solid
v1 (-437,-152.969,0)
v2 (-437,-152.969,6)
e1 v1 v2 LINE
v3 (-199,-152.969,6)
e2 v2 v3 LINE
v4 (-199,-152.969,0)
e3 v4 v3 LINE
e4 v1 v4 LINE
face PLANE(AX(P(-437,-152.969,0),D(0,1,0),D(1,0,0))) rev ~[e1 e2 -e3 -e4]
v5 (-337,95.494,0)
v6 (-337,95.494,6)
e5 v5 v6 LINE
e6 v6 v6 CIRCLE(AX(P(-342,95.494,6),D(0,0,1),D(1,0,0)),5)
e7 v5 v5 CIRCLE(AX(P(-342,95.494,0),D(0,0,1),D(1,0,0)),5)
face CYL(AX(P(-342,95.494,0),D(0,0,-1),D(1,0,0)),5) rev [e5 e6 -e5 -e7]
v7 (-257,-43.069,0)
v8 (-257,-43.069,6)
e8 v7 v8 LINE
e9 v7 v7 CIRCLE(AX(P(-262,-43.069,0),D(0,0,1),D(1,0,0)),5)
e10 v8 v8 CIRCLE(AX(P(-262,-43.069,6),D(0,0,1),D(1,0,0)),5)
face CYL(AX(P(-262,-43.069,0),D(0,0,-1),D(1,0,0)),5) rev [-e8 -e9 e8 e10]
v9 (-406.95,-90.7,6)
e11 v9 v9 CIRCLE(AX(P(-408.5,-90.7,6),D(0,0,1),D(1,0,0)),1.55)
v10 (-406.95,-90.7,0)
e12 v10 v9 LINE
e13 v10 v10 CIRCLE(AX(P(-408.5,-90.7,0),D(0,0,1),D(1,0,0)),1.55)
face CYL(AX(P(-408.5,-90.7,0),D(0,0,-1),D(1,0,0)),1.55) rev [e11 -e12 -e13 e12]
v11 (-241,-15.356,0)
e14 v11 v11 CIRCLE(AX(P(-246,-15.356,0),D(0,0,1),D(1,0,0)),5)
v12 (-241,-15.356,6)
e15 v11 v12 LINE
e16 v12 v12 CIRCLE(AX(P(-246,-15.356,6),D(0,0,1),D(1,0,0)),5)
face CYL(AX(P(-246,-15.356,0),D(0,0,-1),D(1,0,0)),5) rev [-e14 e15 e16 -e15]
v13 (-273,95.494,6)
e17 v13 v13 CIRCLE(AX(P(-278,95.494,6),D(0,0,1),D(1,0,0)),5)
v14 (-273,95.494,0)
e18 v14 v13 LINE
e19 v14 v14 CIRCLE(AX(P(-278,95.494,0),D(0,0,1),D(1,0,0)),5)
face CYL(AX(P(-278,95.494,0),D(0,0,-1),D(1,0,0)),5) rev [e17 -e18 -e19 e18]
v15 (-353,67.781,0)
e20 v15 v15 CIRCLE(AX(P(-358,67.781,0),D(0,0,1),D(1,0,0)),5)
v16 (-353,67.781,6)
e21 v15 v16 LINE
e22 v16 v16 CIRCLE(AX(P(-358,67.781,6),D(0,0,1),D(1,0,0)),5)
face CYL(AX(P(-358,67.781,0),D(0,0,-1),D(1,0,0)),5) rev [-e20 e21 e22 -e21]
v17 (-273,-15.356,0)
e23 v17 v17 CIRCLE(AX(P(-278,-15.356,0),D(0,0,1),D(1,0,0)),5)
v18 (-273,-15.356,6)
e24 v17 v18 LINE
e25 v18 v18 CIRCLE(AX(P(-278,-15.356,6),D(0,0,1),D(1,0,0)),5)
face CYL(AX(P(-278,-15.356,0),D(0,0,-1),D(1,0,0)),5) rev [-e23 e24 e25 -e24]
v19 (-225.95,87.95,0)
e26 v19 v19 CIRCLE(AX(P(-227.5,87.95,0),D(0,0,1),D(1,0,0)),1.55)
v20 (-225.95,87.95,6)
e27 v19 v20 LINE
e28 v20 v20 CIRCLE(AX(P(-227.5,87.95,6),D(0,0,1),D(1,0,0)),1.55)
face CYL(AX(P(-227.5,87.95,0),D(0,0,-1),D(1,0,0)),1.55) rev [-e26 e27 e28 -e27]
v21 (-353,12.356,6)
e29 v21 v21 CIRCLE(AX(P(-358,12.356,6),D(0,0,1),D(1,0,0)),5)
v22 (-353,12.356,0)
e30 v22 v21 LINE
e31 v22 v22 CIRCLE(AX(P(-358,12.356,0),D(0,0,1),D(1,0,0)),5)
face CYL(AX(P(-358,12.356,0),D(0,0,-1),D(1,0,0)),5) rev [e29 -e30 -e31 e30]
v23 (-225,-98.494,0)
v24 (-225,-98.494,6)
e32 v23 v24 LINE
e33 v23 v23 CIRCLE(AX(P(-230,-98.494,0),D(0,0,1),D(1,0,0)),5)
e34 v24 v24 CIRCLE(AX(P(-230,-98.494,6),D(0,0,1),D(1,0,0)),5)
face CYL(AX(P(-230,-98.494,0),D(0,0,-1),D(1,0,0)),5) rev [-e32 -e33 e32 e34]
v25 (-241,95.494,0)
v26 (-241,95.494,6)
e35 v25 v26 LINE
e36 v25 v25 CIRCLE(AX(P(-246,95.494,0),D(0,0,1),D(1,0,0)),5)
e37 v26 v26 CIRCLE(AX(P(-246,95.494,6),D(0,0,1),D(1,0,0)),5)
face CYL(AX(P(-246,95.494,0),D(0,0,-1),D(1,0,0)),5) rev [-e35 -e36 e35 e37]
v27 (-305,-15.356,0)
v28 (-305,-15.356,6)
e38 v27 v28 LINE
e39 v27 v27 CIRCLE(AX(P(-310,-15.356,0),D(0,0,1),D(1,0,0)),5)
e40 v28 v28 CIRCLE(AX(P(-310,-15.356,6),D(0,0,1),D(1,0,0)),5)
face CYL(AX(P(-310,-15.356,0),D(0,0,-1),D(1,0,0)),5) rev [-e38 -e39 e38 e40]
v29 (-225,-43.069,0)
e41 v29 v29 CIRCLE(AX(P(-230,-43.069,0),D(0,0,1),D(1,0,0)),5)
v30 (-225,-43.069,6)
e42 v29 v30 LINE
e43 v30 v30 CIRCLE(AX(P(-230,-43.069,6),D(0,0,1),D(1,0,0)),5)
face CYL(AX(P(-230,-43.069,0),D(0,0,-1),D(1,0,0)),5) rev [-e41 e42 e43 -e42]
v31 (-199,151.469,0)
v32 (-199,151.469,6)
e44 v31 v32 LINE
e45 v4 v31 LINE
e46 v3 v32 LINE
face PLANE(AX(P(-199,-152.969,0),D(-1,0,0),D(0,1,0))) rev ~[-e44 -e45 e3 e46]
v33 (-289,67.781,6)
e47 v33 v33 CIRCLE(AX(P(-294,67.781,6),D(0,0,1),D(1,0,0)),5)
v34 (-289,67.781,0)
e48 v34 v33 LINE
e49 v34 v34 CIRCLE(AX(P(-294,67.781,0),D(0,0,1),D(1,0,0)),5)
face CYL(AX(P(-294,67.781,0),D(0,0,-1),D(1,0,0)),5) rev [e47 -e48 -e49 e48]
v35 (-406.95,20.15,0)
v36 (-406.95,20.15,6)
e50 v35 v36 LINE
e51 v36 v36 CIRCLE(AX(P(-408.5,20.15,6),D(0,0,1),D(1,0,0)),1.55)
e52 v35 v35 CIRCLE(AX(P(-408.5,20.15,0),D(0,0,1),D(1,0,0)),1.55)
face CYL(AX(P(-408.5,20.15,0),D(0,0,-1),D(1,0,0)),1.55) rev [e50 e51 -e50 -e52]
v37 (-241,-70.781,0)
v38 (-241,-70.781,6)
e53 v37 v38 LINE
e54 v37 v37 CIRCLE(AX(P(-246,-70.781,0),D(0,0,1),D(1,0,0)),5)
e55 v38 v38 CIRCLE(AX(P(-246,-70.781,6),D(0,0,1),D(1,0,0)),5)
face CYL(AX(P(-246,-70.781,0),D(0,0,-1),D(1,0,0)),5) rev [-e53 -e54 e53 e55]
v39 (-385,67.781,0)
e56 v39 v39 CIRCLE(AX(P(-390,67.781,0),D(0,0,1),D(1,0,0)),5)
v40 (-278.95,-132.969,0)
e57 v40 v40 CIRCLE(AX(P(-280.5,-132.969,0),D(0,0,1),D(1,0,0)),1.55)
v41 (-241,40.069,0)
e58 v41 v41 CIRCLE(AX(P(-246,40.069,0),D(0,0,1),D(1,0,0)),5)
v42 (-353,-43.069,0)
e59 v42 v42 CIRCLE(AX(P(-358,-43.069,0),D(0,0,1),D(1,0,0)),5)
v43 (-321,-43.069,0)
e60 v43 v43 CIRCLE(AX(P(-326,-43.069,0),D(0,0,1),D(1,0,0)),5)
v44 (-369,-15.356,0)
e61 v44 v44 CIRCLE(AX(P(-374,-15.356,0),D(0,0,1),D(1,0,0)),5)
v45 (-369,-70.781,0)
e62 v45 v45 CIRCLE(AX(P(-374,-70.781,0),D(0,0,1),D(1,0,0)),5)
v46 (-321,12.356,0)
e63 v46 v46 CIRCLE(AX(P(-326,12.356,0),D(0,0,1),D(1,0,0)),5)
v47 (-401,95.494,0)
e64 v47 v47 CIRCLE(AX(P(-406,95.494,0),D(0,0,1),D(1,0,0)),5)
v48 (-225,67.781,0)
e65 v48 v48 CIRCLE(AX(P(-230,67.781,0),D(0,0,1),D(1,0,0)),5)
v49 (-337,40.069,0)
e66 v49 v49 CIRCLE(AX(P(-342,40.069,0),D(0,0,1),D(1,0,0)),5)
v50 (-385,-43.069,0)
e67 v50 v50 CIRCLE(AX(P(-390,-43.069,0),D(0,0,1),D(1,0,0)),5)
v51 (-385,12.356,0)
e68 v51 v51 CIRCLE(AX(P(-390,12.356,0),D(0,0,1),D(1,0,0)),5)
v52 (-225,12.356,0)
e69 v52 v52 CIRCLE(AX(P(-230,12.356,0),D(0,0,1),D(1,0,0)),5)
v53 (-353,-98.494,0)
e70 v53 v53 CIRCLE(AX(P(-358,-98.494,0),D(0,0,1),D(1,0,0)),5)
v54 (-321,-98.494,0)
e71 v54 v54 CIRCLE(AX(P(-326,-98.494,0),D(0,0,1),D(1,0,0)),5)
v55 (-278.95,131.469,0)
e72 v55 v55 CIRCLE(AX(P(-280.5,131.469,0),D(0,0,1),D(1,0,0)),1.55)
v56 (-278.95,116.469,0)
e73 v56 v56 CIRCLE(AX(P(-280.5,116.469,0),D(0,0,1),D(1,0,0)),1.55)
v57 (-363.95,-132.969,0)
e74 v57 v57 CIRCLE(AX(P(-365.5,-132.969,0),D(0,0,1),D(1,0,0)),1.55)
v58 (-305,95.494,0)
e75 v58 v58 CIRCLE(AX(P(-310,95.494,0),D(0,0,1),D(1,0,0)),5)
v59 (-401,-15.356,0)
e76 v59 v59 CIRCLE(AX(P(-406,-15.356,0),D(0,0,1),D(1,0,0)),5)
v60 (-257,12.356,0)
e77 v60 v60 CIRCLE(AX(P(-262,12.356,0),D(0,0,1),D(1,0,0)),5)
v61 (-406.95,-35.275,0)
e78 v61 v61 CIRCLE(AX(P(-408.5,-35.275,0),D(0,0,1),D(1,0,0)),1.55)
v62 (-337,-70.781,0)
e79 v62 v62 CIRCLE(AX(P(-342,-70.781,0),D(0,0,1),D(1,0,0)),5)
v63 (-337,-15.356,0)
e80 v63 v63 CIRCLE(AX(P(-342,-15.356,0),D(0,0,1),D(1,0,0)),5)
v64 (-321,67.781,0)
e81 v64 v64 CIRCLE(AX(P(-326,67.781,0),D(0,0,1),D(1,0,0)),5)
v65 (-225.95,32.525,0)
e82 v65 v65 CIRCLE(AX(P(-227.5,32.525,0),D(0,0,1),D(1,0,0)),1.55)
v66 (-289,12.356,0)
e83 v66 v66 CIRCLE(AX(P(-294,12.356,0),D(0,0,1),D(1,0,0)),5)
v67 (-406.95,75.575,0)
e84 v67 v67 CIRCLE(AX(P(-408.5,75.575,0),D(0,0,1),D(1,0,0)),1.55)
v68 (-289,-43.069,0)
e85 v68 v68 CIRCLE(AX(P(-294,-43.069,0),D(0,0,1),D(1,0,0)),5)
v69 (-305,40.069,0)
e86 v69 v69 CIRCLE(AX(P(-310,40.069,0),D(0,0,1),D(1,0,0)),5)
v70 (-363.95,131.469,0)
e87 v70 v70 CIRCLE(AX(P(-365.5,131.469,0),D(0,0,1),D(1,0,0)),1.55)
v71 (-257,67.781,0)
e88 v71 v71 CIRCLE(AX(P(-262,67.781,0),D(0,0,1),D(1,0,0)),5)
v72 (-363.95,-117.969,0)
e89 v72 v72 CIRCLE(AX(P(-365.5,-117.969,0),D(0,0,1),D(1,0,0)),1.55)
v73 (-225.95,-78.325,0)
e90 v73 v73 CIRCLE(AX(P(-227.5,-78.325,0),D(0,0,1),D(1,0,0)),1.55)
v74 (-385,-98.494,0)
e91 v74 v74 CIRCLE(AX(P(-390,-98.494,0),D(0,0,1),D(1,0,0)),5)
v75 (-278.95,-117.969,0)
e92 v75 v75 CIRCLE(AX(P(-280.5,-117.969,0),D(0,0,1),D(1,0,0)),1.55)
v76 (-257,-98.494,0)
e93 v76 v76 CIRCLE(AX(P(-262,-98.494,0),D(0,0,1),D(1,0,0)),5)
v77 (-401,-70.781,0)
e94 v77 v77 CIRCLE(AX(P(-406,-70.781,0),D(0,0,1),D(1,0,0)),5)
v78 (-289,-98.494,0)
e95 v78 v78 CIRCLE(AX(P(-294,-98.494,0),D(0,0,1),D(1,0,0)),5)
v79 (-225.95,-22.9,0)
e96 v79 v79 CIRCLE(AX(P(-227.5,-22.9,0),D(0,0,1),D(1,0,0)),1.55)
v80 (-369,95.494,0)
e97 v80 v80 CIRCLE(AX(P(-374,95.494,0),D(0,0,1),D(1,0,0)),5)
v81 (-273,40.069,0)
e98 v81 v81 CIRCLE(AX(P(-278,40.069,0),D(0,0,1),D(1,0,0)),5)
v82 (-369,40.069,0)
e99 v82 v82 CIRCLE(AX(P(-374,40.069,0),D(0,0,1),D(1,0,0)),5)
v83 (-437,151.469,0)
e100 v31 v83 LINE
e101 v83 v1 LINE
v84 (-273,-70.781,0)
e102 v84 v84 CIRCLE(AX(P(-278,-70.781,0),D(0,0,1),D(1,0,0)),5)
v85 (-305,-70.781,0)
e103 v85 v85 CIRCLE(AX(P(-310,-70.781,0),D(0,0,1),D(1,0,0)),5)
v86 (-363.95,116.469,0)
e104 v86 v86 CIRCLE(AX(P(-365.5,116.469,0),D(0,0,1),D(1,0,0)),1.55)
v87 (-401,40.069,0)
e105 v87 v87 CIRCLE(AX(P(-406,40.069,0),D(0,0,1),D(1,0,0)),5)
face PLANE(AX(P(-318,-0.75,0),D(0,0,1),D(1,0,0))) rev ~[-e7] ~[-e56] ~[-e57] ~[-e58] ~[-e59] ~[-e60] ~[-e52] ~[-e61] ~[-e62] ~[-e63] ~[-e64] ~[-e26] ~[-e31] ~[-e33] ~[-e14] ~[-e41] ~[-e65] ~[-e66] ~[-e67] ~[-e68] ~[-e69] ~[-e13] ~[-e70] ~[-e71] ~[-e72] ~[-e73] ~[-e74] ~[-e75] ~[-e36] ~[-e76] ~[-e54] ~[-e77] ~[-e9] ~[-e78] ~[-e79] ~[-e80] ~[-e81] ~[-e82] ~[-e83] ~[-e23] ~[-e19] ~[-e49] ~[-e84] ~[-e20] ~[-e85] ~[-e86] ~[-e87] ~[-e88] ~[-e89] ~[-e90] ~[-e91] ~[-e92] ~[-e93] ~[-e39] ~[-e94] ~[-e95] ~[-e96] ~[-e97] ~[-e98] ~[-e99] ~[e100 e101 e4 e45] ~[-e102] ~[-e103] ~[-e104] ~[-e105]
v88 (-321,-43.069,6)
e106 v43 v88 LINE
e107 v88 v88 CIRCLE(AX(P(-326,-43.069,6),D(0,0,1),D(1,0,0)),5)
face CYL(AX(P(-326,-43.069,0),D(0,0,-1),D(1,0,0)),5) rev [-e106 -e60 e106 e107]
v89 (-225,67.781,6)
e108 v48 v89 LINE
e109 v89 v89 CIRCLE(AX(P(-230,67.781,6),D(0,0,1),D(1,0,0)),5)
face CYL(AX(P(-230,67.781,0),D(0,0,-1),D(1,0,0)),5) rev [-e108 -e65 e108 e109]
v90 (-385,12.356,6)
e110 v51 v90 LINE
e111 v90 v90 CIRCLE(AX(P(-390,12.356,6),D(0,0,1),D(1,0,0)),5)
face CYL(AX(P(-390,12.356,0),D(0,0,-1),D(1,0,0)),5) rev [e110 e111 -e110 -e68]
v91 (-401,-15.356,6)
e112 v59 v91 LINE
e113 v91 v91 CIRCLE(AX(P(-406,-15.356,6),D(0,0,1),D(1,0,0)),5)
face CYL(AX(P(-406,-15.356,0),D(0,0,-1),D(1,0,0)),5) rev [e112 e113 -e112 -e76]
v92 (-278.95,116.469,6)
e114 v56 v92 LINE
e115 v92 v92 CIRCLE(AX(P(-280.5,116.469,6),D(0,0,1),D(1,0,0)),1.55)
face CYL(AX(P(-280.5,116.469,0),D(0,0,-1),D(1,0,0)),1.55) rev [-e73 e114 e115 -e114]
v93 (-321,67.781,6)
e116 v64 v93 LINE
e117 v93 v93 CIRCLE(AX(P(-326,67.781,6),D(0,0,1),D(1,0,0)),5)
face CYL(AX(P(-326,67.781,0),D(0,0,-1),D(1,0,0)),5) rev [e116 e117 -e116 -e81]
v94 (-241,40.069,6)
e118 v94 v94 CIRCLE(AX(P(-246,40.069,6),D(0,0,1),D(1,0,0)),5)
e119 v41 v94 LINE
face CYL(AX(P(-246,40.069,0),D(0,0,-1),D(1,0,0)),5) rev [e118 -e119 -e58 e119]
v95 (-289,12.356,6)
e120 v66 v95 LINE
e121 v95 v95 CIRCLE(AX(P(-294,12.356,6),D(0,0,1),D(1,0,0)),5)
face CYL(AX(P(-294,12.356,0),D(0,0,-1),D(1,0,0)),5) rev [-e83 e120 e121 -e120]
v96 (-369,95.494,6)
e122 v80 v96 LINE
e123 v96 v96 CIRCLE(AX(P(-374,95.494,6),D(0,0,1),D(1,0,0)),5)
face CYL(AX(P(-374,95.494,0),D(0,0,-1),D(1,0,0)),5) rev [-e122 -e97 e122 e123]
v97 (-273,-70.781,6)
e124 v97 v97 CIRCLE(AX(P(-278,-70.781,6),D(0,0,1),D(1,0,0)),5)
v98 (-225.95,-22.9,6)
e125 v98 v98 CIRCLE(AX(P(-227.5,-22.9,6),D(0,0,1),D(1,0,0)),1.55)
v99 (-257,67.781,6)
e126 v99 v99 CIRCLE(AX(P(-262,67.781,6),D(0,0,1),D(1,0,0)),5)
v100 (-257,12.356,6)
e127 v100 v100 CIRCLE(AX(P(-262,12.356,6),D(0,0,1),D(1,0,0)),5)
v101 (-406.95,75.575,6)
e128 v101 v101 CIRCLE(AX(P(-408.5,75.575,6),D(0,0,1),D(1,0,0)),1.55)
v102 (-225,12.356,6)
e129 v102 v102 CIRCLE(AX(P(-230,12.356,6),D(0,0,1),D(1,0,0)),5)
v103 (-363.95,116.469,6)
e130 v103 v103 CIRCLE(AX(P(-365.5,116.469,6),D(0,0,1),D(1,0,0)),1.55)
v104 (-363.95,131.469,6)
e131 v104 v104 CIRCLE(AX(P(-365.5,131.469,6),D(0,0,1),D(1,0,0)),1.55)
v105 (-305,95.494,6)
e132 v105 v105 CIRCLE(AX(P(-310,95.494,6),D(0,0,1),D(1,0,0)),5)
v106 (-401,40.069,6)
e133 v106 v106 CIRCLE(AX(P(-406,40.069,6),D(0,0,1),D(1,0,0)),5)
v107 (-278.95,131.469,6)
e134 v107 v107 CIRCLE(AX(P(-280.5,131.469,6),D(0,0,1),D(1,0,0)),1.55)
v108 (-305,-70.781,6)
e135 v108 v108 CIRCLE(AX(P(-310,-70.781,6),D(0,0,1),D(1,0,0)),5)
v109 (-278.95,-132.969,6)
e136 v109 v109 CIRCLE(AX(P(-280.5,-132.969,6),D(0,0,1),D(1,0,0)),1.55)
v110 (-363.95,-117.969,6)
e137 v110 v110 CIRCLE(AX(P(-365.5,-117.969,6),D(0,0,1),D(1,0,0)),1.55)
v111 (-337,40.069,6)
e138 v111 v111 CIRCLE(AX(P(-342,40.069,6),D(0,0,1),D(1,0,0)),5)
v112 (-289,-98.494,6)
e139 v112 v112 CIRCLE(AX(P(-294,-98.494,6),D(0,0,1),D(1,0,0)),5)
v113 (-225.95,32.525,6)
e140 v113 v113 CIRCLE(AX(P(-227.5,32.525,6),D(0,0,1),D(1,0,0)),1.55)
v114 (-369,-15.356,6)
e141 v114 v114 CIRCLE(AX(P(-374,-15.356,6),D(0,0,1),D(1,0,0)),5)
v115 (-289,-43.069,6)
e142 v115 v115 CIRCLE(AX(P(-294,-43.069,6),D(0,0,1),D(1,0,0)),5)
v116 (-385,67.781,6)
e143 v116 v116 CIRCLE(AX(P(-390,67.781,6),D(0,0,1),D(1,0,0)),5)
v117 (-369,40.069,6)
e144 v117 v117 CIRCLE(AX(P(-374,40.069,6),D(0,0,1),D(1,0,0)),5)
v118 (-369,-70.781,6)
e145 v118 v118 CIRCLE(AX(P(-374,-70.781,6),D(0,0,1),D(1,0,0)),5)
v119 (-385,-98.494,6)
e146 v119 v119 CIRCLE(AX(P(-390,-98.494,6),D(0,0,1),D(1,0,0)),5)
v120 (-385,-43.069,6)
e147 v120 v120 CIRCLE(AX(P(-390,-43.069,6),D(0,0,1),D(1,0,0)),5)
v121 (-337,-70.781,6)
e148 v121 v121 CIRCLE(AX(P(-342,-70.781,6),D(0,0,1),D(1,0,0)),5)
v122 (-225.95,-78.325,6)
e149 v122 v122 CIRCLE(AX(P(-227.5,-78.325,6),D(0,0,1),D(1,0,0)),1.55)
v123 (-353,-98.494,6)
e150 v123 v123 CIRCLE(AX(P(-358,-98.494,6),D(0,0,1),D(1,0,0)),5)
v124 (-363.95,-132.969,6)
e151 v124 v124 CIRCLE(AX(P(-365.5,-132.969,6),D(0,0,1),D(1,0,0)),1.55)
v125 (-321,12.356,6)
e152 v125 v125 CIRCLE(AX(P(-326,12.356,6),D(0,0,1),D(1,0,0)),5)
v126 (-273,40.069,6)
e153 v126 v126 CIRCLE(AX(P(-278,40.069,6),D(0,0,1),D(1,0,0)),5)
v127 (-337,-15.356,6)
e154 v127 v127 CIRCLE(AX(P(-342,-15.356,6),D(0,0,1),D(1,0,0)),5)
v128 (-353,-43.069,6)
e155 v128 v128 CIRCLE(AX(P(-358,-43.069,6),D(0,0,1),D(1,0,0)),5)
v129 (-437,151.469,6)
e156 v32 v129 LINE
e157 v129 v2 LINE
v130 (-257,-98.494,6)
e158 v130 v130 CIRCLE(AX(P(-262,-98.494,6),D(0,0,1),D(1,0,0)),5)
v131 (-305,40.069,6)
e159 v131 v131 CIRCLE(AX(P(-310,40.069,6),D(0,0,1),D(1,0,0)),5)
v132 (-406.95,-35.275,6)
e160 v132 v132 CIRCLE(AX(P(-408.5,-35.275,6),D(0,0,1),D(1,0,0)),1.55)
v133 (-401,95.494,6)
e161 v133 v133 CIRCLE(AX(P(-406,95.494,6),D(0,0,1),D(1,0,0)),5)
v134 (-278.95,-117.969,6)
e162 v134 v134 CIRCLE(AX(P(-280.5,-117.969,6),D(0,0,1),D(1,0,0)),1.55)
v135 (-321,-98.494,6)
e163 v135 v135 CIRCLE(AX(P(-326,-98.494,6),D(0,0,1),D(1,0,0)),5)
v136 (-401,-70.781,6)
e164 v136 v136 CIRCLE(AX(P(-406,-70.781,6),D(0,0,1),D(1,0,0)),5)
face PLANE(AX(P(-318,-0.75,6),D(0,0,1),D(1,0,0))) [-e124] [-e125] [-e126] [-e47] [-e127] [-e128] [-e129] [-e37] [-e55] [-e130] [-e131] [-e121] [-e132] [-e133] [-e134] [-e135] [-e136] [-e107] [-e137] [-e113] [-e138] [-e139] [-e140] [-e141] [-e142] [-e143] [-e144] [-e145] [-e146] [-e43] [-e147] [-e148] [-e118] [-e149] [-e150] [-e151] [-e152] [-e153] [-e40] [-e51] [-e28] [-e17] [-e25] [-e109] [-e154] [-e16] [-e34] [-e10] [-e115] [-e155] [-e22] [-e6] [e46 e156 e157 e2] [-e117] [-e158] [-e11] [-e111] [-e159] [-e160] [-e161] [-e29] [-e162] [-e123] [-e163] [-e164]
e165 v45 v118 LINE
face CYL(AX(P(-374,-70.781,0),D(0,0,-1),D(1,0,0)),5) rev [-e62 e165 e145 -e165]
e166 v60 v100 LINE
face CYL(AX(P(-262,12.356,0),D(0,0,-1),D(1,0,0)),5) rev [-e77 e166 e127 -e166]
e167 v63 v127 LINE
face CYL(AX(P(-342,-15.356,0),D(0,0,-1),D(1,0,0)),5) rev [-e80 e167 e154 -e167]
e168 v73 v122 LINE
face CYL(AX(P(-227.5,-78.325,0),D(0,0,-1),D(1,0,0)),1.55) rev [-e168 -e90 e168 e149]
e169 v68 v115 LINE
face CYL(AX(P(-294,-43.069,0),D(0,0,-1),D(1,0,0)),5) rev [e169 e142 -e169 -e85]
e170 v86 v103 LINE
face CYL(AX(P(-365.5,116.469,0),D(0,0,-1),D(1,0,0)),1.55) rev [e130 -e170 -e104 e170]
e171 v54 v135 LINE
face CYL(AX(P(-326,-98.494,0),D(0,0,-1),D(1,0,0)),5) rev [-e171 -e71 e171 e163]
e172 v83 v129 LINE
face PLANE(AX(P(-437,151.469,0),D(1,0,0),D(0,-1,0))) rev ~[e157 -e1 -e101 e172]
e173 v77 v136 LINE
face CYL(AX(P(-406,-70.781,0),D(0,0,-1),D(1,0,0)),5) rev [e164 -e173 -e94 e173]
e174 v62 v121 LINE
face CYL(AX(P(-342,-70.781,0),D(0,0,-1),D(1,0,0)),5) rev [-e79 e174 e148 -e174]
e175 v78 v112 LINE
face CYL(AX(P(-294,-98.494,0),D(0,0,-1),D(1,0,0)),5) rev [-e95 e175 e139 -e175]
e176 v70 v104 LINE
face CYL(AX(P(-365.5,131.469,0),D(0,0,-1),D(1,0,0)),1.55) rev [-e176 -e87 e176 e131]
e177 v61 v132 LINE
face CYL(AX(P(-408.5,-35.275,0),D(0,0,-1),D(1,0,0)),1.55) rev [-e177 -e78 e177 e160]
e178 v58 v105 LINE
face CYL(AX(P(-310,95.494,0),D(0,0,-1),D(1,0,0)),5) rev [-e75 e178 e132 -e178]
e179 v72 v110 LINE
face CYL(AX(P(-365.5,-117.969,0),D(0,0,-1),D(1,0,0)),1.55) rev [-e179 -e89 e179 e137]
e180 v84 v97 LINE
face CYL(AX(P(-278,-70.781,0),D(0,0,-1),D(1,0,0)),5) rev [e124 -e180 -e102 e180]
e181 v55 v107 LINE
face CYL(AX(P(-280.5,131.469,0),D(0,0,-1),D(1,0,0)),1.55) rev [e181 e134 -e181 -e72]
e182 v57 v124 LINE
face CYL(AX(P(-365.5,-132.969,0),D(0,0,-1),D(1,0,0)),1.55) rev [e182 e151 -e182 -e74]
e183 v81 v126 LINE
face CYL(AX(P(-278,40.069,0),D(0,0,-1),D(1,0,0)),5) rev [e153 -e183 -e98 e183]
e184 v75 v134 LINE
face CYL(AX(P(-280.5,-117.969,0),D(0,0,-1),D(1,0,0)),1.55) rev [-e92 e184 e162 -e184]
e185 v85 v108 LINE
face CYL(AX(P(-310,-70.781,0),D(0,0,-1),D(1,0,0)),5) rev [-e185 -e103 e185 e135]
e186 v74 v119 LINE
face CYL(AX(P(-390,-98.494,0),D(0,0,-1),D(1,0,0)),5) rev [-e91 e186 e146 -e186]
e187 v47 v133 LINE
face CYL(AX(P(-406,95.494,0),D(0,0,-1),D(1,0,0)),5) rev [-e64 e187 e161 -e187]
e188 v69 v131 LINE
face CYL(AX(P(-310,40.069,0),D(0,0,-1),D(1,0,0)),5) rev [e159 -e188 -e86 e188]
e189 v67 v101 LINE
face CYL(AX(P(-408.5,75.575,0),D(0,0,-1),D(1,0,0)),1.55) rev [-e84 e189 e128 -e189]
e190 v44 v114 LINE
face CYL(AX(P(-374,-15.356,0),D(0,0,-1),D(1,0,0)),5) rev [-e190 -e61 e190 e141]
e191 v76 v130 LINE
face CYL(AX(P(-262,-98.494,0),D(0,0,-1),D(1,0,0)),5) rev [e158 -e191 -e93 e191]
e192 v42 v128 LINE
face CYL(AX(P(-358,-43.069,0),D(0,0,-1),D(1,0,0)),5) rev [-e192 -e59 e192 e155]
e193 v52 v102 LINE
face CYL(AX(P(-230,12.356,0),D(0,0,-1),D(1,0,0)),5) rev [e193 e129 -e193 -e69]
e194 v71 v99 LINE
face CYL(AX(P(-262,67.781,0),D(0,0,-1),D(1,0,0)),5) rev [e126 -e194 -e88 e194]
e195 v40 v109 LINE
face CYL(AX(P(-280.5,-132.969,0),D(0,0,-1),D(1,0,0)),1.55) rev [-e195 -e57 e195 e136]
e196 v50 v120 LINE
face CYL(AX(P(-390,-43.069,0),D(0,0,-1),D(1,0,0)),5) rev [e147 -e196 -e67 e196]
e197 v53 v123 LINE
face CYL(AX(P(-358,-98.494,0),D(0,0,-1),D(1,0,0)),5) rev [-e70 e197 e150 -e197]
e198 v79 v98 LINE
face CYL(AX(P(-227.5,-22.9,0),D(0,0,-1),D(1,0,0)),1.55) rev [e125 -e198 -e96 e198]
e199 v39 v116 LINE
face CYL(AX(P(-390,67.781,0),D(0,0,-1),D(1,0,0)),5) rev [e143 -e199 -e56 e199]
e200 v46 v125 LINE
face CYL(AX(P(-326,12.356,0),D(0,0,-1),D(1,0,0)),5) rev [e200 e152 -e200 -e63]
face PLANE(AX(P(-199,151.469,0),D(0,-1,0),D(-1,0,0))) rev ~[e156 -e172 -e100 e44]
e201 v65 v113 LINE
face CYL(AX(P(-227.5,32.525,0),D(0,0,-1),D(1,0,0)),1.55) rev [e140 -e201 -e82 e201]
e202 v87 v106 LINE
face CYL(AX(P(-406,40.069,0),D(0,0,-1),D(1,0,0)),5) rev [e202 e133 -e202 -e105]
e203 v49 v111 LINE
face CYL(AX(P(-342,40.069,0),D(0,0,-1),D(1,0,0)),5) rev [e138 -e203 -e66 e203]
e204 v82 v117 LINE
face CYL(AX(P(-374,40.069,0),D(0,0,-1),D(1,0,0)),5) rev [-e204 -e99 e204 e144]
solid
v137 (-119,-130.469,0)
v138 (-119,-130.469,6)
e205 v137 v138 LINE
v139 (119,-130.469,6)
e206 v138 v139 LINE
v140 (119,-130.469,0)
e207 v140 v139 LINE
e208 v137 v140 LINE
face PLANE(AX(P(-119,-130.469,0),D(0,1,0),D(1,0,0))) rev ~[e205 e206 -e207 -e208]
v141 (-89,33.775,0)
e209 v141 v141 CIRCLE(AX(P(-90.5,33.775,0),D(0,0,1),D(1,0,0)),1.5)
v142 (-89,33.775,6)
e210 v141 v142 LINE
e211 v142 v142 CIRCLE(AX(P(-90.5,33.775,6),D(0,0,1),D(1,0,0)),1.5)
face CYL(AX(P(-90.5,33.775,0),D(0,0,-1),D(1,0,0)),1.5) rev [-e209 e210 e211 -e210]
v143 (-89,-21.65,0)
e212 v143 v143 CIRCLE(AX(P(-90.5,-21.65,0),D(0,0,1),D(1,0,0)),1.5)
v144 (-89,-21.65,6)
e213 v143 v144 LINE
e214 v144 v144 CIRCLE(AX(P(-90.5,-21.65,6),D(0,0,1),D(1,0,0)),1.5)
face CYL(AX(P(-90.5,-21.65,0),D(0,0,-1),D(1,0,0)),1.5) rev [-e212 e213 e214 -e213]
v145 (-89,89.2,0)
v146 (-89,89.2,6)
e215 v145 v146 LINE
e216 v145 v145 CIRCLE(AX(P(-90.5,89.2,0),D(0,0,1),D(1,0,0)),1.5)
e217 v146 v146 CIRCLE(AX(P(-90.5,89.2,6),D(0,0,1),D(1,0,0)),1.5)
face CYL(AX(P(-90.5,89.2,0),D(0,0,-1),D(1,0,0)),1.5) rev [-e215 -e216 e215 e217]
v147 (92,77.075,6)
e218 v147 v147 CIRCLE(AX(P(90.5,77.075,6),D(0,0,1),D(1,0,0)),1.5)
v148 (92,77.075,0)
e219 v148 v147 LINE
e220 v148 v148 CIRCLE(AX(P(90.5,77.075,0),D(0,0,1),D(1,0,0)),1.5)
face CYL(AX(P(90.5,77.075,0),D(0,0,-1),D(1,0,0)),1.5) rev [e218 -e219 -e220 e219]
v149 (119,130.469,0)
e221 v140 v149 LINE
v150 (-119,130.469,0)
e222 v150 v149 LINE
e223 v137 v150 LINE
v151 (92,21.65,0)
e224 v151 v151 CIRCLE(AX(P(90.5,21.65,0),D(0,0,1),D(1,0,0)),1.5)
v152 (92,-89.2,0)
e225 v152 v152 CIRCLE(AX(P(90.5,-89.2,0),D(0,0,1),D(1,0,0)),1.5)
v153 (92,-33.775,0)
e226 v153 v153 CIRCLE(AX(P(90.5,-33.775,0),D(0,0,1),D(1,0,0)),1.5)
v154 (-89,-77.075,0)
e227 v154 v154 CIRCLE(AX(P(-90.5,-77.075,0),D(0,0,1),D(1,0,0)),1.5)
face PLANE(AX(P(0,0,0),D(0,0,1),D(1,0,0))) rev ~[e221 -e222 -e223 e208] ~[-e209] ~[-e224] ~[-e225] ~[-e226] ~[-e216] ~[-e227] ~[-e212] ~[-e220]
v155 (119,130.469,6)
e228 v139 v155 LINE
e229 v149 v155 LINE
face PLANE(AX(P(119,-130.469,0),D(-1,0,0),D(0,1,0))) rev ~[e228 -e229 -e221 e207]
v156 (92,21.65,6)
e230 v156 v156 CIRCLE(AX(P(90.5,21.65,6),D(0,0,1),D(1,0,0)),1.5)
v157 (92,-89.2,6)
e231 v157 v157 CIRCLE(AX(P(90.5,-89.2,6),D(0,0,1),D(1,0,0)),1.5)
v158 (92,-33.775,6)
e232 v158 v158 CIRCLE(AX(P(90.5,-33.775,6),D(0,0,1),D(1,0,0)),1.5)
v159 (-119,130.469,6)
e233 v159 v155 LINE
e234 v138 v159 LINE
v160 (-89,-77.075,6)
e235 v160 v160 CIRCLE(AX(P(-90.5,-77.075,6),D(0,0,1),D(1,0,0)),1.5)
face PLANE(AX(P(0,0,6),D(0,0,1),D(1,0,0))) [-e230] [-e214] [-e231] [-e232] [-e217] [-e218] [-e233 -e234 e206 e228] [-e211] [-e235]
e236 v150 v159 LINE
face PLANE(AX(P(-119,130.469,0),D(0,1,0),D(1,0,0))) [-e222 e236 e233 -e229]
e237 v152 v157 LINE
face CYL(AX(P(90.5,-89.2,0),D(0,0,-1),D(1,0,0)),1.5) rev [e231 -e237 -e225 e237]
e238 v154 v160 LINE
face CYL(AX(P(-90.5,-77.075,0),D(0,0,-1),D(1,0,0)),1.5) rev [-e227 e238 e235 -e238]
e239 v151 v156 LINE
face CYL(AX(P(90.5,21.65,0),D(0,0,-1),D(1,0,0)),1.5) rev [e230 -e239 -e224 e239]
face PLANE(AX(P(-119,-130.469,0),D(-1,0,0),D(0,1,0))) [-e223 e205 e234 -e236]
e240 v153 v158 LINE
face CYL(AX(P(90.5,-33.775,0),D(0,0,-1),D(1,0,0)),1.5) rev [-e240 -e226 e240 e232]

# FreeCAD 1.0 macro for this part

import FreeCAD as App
import Part
import Sketcher

V = App.Vector
Q = App.Units.Quantity


def add_polygon(sketch, points):
    """Adds a closed chain of lines whose ends are joined by coincident constraints."""
    first, n = sketch.GeometryCount, len(points)
    for a, b in zip(points, points[1:] + points[:1]):
        sketch.addGeometry(Part.LineSegment(App.Vector(*a, 0), App.Vector(*b, 0)), False)
    for i in range(n):
        sketch.addConstraint(Sketcher.Constraint("Coincident", first + i, 2, first + (i + 1) % n, 1))

doc = App.newDocument("Part")
body = doc.addObject("PartDesign::Body", "Body")
body.AllowCompound = True

# Sketch on XY plane
sketch1 = body.newObject("Sketcher::SketchObject", "Sketch")
sketch1.AttachmentSupport = (doc.getObject("XY_Plane"), [""])
sketch1.MapMode = "FlatFace"
add_polygon(sketch1, [(-119, 130.5), (-119, -130.5), (119, -130.5), (119, 130.5)])  # lines 0-3
sketch1.addGeometry(Part.Circle(V(-90.5, -77.1, 0), V(0, 0, 1), 1.5), False)  # 4
sketch1.addGeometry(Part.Circle(V(-90.5, -21.6, 0), V(0, 0, 1), 1.5), False)  # 5
sketch1.addGeometry(Part.Circle(V(90.5, -89.2, 0), V(0, 0, 1), 1.5), False)  # 6
sketch1.addGeometry(Part.Circle(V(90.5, -33.8, 0), V(0, 0, 1), 1.5), False)  # 7
sketch1.addGeometry(Part.Circle(V(-90.5, 33.8, 0), V(0, 0, 1), 1.5), False)  # 8
sketch1.addGeometry(Part.Circle(V(-90.5, 89.2, 0), V(0, 0, 1), 1.5), False)  # 9
sketch1.addGeometry(Part.Circle(V(90.5, 21.6, 0), V(0, 0, 1), 1.5), False)  # 10
sketch1.addGeometry(Part.Circle(V(90.5, 77.1, 0), V(0, 0, 1), 1.5), False)  # 11
add_polygon(sketch1, [(-199, -153), (-199, 151.5), (-437, 151.5), (-437, -153)])  # lines 12-15
sketch1.addGeometry(Part.Circle(V(-365.5, -133, 0), V(0, 0, 1), 1.6), False)  # 16
sketch1.addGeometry(Part.Circle(V(-365.5, -118, 0), V(0, 0, 1), 1.6), False)  # 17
sketch1.addGeometry(Part.Circle(V(-408.5, -90.7, 0), V(0, 0, 1), 1.6), False)  # 18
sketch1.addGeometry(Part.Circle(V(-390, -98.5, 0), V(0, 0, 1), 5), False)  # 19
sketch1.addGeometry(Part.Circle(V(-406, -70.8, 0), V(0, 0, 1), 5), False)  # 20
sketch1.addGeometry(Part.Circle(V(-374, -70.8, 0), V(0, 0, 1), 5), False)  # 21
sketch1.addGeometry(Part.Circle(V(-358, -98.5, 0), V(0, 0, 1), 5), False)  # 22
sketch1.addGeometry(Part.Circle(V(-342, -70.8, 0), V(0, 0, 1), 5), False)  # 23
sketch1.addGeometry(Part.Circle(V(-326, -98.5, 0), V(0, 0, 1), 5), False)  # 24
sketch1.addGeometry(Part.Circle(V(-408.5, -35.3, 0), V(0, 0, 1), 1.6), False)  # 25
sketch1.addGeometry(Part.Circle(V(-390, -43.1, 0), V(0, 0, 1), 5), False)  # 26
sketch1.addGeometry(Part.Circle(V(-406, -15.4, 0), V(0, 0, 1), 5), False)  # 27
sketch1.addGeometry(Part.Circle(V(-374, -15.4, 0), V(0, 0, 1), 5), False)  # 28
sketch1.addGeometry(Part.Circle(V(-358, -43.1, 0), V(0, 0, 1), 5), False)  # 29
sketch1.addGeometry(Part.Circle(V(-326, -43.1, 0), V(0, 0, 1), 5), False)  # 30
sketch1.addGeometry(Part.Circle(V(-342, -15.4, 0), V(0, 0, 1), 5), False)  # 31
sketch1.addGeometry(Part.Circle(V(-280.5, -133, 0), V(0, 0, 1), 1.6), False)  # 32
sketch1.addGeometry(Part.Circle(V(-280.5, -118, 0), V(0, 0, 1), 1.6), False)  # 33
sketch1.addGeometry(Part.Circle(V(-310, -70.8, 0), V(0, 0, 1), 5), False)  # 34
sketch1.addGeometry(Part.Circle(V(-294, -98.5, 0), V(0, 0, 1), 5), False)  # 35
sketch1.addGeometry(Part.Circle(V(-278, -70.8, 0), V(0, 0, 1), 5), False)  # 36
sketch1.addGeometry(Part.Circle(V(-262, -98.5, 0), V(0, 0, 1), 5), False)  # 37
sketch1.addGeometry(Part.Circle(V(-230, -98.5, 0), V(0, 0, 1), 5), False)  # 38
sketch1.addGeometry(Part.Circle(V(-246, -70.8, 0), V(0, 0, 1), 5), False)  # 39
sketch1.addGeometry(Part.Circle(V(-227.5, -78.3, 0), V(0, 0, 1), 1.6), False)  # 40
sketch1.addGeometry(Part.Circle(V(-294, -43.1, 0), V(0, 0, 1), 5), False)  # 41
sketch1.addGeometry(Part.Circle(V(-310, -15.4, 0), V(0, 0, 1), 5), False)  # 42
sketch1.addGeometry(Part.Circle(V(-278, -15.4, 0), V(0, 0, 1), 5), False)  # 43
sketch1.addGeometry(Part.Circle(V(-262, -43.1, 0), V(0, 0, 1), 5), False)  # 44
sketch1.addGeometry(Part.Circle(V(-230, -43.1, 0), V(0, 0, 1), 5), False)  # 45
sketch1.addGeometry(Part.Circle(V(-227.5, -22.9, 0), V(0, 0, 1), 1.6), False)  # 46
sketch1.addGeometry(Part.Circle(V(-246, -15.4, 0), V(0, 0, 1), 5), False)  # 47
sketch1.addGeometry(Part.Circle(V(-390, 12.4, 0), V(0, 0, 1), 5), False)  # 48
sketch1.addGeometry(Part.Circle(V(-408.5, 20.1, 0), V(0, 0, 1), 1.6), False)  # 49
sketch1.addGeometry(Part.Circle(V(-406, 40.1, 0), V(0, 0, 1), 5), False)  # 50
sketch1.addGeometry(Part.Circle(V(-374, 40.1, 0), V(0, 0, 1), 5), False)  # 51
sketch1.addGeometry(Part.Circle(V(-358, 12.4, 0), V(0, 0, 1), 5), False)  # 52
sketch1.addGeometry(Part.Circle(V(-326, 12.4, 0), V(0, 0, 1), 5), False)  # 53
sketch1.addGeometry(Part.Circle(V(-342, 40.1, 0), V(0, 0, 1), 5), False)  # 54
sketch1.addGeometry(Part.Circle(V(-408.5, 75.6, 0), V(0, 0, 1), 1.6), False)  # 55
sketch1.addGeometry(Part.Circle(V(-390, 67.8, 0), V(0, 0, 1), 5), False)  # 56
sketch1.addGeometry(Part.Circle(V(-406, 95.5, 0), V(0, 0, 1), 5), False)  # 57
sketch1.addGeometry(Part.Circle(V(-374, 95.5, 0), V(0, 0, 1), 5), False)  # 58
sketch1.addGeometry(Part.Circle(V(-365.5, 116.5, 0), V(0, 0, 1), 1.6), False)  # 59
sketch1.addGeometry(Part.Circle(V(-365.5, 131.5, 0), V(0, 0, 1), 1.6), False)  # 60
sketch1.addGeometry(Part.Circle(V(-358, 67.8, 0), V(0, 0, 1), 5), False)  # 61
sketch1.addGeometry(Part.Circle(V(-342, 95.5, 0), V(0, 0, 1), 5), False)  # 62
sketch1.addGeometry(Part.Circle(V(-326, 67.8, 0), V(0, 0, 1), 5), False)  # 63
sketch1.addGeometry(Part.Circle(V(-294, 12.4, 0), V(0, 0, 1), 5), False)  # 64
sketch1.addGeometry(Part.Circle(V(-310, 40.1, 0), V(0, 0, 1), 5), False)  # 65
sketch1.addGeometry(Part.Circle(V(-278, 40.1, 0), V(0, 0, 1), 5), False)  # 66
sketch1.addGeometry(Part.Circle(V(-262, 12.4, 0), V(0, 0, 1), 5), False)  # 67
sketch1.addGeometry(Part.Circle(V(-230, 12.4, 0), V(0, 0, 1), 5), False)  # 68
sketch1.addGeometry(Part.Circle(V(-227.5, 32.5, 0), V(0, 0, 1), 1.6), False)  # 69
sketch1.addGeometry(Part.Circle(V(-246, 40.1, 0), V(0, 0, 1), 5), False)  # 70
sketch1.addGeometry(Part.Circle(V(-310, 95.5, 0), V(0, 0, 1), 5), False)  # 71
sketch1.addGeometry(Part.Circle(V(-294, 67.8, 0), V(0, 0, 1), 5), False)  # 72
sketch1.addGeometry(Part.Circle(V(-278, 95.5, 0), V(0, 0, 1), 5), False)  # 73
sketch1.addGeometry(Part.Circle(V(-280.5, 116.5, 0), V(0, 0, 1), 1.6), False)  # 74
sketch1.addGeometry(Part.Circle(V(-280.5, 131.5, 0), V(0, 0, 1), 1.6), False)  # 75
sketch1.addGeometry(Part.Circle(V(-262, 67.8, 0), V(0, 0, 1), 5), False)  # 76
sketch1.addGeometry(Part.Circle(V(-230, 67.8, 0), V(0, 0, 1), 5), False)  # 77
sketch1.addGeometry(Part.Circle(V(-246, 95.5, 0), V(0, 0, 1), 5), False)  # 78
sketch1.addGeometry(Part.Circle(V(-227.5, 88, 0), V(0, 0, 1), 1.6), False)  # 79
sketch1.addConstraint(Sketcher.Constraint("Vertical", 0))
sketch1.addConstraint(Sketcher.Constraint("Horizontal", 1))
sketch1.addConstraint(Sketcher.Constraint("Vertical", 2))
sketch1.addConstraint(Sketcher.Constraint("Horizontal", 3))
sketch1.addConstraint(Sketcher.Constraint("Vertical", 12))
sketch1.addConstraint(Sketcher.Constraint("Horizontal", 13))
sketch1.addConstraint(Sketcher.Constraint("Vertical", 14))
sketch1.addConstraint(Sketcher.Constraint("Horizontal", 15))
sketch1.addConstraint(Sketcher.Constraint("Equal", 4, 5))
sketch1.addConstraint(Sketcher.Constraint("Equal", 5, 6))
sketch1.addConstraint(Sketcher.Constraint("Equal", 6, 7))
sketch1.addConstraint(Sketcher.Constraint("Equal", 7, 8))
sketch1.addConstraint(Sketcher.Constraint("Equal", 8, 9))
sketch1.addConstraint(Sketcher.Constraint("Equal", 9, 10))
sketch1.addConstraint(Sketcher.Constraint("Equal", 10, 11))
sketch1.addConstraint(Sketcher.Constraint("Equal", 16, 17))
sketch1.addConstraint(Sketcher.Constraint("Equal", 17, 18))
sketch1.addConstraint(Sketcher.Constraint("Equal", 19, 20))
sketch1.addConstraint(Sketcher.Constraint("Equal", 20, 21))
sketch1.addConstraint(Sketcher.Constraint("Equal", 21, 22))
sketch1.addConstraint(Sketcher.Constraint("Equal", 22, 23))
sketch1.addConstraint(Sketcher.Constraint("Equal", 23, 24))
sketch1.addConstraint(Sketcher.Constraint("Equal", 18, 25))
sketch1.addConstraint(Sketcher.Constraint("Equal", 24, 26))
sketch1.addConstraint(Sketcher.Constraint("Equal", 26, 27))
sketch1.addConstraint(Sketcher.Constraint("Equal", 27, 28))
sketch1.addConstraint(Sketcher.Constraint("Equal", 28, 29))
sketch1.addConstraint(Sketcher.Constraint("Equal", 29, 30))
sketch1.addConstraint(Sketcher.Constraint("Equal", 30, 31))
sketch1.addConstraint(Sketcher.Constraint("Equal", 25, 32))
sketch1.addConstraint(Sketcher.Constraint("Equal", 32, 33))
sketch1.addConstraint(Sketcher.Constraint("Equal", 31, 34))
sketch1.addConstraint(Sketcher.Constraint("Equal", 34, 35))
sketch1.addConstraint(Sketcher.Constraint("Equal", 35, 36))
sketch1.addConstraint(Sketcher.Constraint("Equal", 36, 37))
sketch1.addConstraint(Sketcher.Constraint("Equal", 37, 38))
sketch1.addConstraint(Sketcher.Constraint("Equal", 38, 39))
sketch1.addConstraint(Sketcher.Constraint("Equal", 33, 40))
sketch1.addConstraint(Sketcher.Constraint("Equal", 39, 41))
sketch1.addConstraint(Sketcher.Constraint("Equal", 41, 42))
sketch1.addConstraint(Sketcher.Constraint("Equal", 42, 43))
sketch1.addConstraint(Sketcher.Constraint("Equal", 43, 44))
sketch1.addConstraint(Sketcher.Constraint("Equal", 44, 45))
sketch1.addConstraint(Sketcher.Constraint("Equal", 40, 46))
sketch1.addConstraint(Sketcher.Constraint("Equal", 45, 47))
sketch1.addConstraint(Sketcher.Constraint("Equal", 47, 48))
sketch1.addConstraint(Sketcher.Constraint("Equal", 46, 49))
sketch1.addConstraint(Sketcher.Constraint("Equal", 48, 50))
sketch1.addConstraint(Sketcher.Constraint("Equal", 50, 51))
sketch1.addConstraint(Sketcher.Constraint("Equal", 51, 52))
sketch1.addConstraint(Sketcher.Constraint("Equal", 52, 53))
sketch1.addConstraint(Sketcher.Constraint("Equal", 53, 54))
sketch1.addConstraint(Sketcher.Constraint("Equal", 49, 55))
sketch1.addConstraint(Sketcher.Constraint("Equal", 54, 56))
sketch1.addConstraint(Sketcher.Constraint("Equal", 56, 57))
sketch1.addConstraint(Sketcher.Constraint("Equal", 57, 58))
sketch1.addConstraint(Sketcher.Constraint("Equal", 55, 59))
sketch1.addConstraint(Sketcher.Constraint("Equal", 59, 60))
sketch1.addConstraint(Sketcher.Constraint("Equal", 58, 61))
sketch1.addConstraint(Sketcher.Constraint("Equal", 61, 62))
sketch1.addConstraint(Sketcher.Constraint("Equal", 62, 63))
sketch1.addConstraint(Sketcher.Constraint("Equal", 63, 64))
sketch1.addConstraint(Sketcher.Constraint("Equal", 64, 65))
sketch1.addConstraint(Sketcher.Constraint("Equal", 65, 66))
sketch1.addConstraint(Sketcher.Constraint("Equal", 66, 67))
sketch1.addConstraint(Sketcher.Constraint("Equal", 67, 68))
sketch1.addConstraint(Sketcher.Constraint("Equal", 60, 69))
sketch1.addConstraint(Sketcher.Constraint("Equal", 68, 70))
sketch1.addConstraint(Sketcher.Constraint("Equal", 70, 71))
sketch1.addConstraint(Sketcher.Constraint("Equal", 71, 72))
sketch1.addConstraint(Sketcher.Constraint("Equal", 72, 73))
sketch1.addConstraint(Sketcher.Constraint("Equal", 69, 74))
sketch1.addConstraint(Sketcher.Constraint("Equal", 74, 75))
sketch1.addConstraint(Sketcher.Constraint("Equal", 73, 76))
sketch1.addConstraint(Sketcher.Constraint("Equal", 76, 77))
sketch1.addConstraint(Sketcher.Constraint("Equal", 77, 78))
sketch1.addConstraint(Sketcher.Constraint("Equal", 75, 79))
sketch1.addConstraint(Sketcher.Constraint("Symmetric", 7, 3, 8, 3, -1, 1))
sketch1.addConstraint(Sketcher.Constraint("Symmetric", 6, 3, 9, 3, -1, 1))
sketch1.addConstraint(Sketcher.Constraint("Symmetric", 5, 3, 10, 3, -1, 1))
sketch1.addConstraint(Sketcher.Constraint("Symmetric", 4, 3, 11, 3, -1, 1))
sketch1.addConstraint(Sketcher.Constraint("Symmetric", 0, 2, 2, 2, -1, 1))
sketch1.addConstraint(Sketcher.Constraint("Horizontal", 20, 3, 21, 3))
sketch1.addConstraint(Sketcher.Constraint("Horizontal", 19, 3, 22, 3))
sketch1.addConstraint(Sketcher.Constraint("Horizontal", 21, 3, 23, 3))
sketch1.addConstraint(Sketcher.Constraint("Horizontal", 22, 3, 24, 3))
sketch1.addConstraint(Sketcher.Constraint("Horizontal", 27, 3, 28, 3))
sketch1.addConstraint(Sketcher.Constraint("Horizontal", 26, 3, 29, 3))
sketch1.addConstraint(Sketcher.Constraint("Horizontal", 29, 3, 30, 3))
sketch1.addConstraint(Sketcher.Constraint("Horizontal", 28, 3, 31, 3))
sketch1.addConstraint(Sketcher.Constraint("Horizontal", 16, 3, 32, 3))
sketch1.addConstraint(Sketcher.Constraint("Horizontal", 17, 3, 33, 3))
sketch1.addConstraint(Sketcher.Constraint("Horizontal", 23, 3, 34, 3))
sketch1.addConstraint(Sketcher.Constraint("Horizontal", 24, 3, 35, 3))
sketch1.addConstraint(Sketcher.Constraint("Horizontal", 34, 3, 36, 3))
sketch1.addConstraint(Sketcher.Constraint("Horizontal", 35, 3, 37, 3))
sketch1.addConstraint(Sketcher.Constraint("Horizontal", 37, 3, 38, 3))
sketch1.addConstraint(Sketcher.Constraint("Horizontal", 36, 3, 39, 3))
sketch1.addConstraint(Sketcher.Constraint("Horizontal", 30, 3, 41, 3))
sketch1.addConstraint(Sketcher.Constraint("Horizontal", 31, 3, 42, 3))
sketch1.addConstraint(Sketcher.Constraint("Horizontal", 42, 3, 43, 3))
sketch1.addConstraint(Sketcher.Constraint("Horizontal", 41, 3, 44, 3))
sketch1.addConstraint(Sketcher.Constraint("Horizontal", 44, 3, 45, 3))
sketch1.addConstraint(Sketcher.Constraint("Horizontal", 43, 3, 47, 3))
sketch1.addConstraint(Sketcher.Constraint("Horizontal", 50, 3, 51, 3))
sketch1.addConstraint(Sketcher.Constraint("Horizontal", 48, 3, 52, 3))
sketch1.addConstraint(Sketcher.Constraint("Horizontal", 52, 3, 53, 3))
sketch1.addConstraint(Sketcher.Constraint("Horizontal", 51, 3, 54, 3))
sketch1.addConstraint(Sketcher.Constraint("Horizontal", 57, 3, 58, 3))
sketch1.addConstraint(Sketcher.Constraint("Horizontal", 56, 3, 61, 3))
sketch1.addConstraint(Sketcher.Constraint("Horizontal", 58, 3, 62, 3))
sketch1.addConstraint(Sketcher.Constraint("Horizontal", 61, 3, 63, 3))
sketch1.addConstraint(Sketcher.Constraint("Horizontal", 53, 3, 64, 3))
sketch1.addConstraint(Sketcher.Constraint("Horizontal", 54, 3, 65, 3))
sketch1.addConstraint(Sketcher.Constraint("Horizontal", 65, 3, 66, 3))
sketch1.addConstraint(Sketcher.Constraint("Horizontal", 64, 3, 67, 3))
sketch1.addConstraint(Sketcher.Constraint("Horizontal", 67, 3, 68, 3))
sketch1.addConstraint(Sketcher.Constraint("Horizontal", 66, 3, 70, 3))
sketch1.addConstraint(Sketcher.Constraint("Horizontal", 62, 3, 71, 3))
sketch1.addConstraint(Sketcher.Constraint("Horizontal", 63, 3, 72, 3))
sketch1.addConstraint(Sketcher.Constraint("Horizontal", 71, 3, 73, 3))
sketch1.addConstraint(Sketcher.Constraint("Horizontal", 59, 3, 74, 3))
sketch1.addConstraint(Sketcher.Constraint("Horizontal", 60, 3, 75, 3))
sketch1.addConstraint(Sketcher.Constraint("Horizontal", 72, 3, 76, 3))
sketch1.addConstraint(Sketcher.Constraint("Horizontal", 76, 3, 77, 3))
sketch1.addConstraint(Sketcher.Constraint("Horizontal", 73, 3, 78, 3))
sketch1.addConstraint(Sketcher.Constraint("Vertical", 4, 3, 5, 3))
sketch1.addConstraint(Sketcher.Constraint("Vertical", 6, 3, 7, 3))
sketch1.addConstraint(Sketcher.Constraint("Vertical", 5, 3, 8, 3))
sketch1.addConstraint(Sketcher.Constraint("Vertical", 16, 3, 17, 3))
sketch1.addConstraint(Sketcher.Constraint("Vertical", 18, 3, 25, 3))
sketch1.addConstraint(Sketcher.Constraint("Vertical", 19, 3, 26, 3))
sketch1.addConstraint(Sketcher.Constraint("Vertical", 20, 3, 27, 3))
sketch1.addConstraint(Sketcher.Constraint("Vertical", 21, 3, 28, 3))
sketch1.addConstraint(Sketcher.Constraint("Vertical", 22, 3, 29, 3))
sketch1.addConstraint(Sketcher.Constraint("Vertical", 24, 3, 30, 3))
sketch1.addConstraint(Sketcher.Constraint("Vertical", 23, 3, 31, 3))
sketch1.addConstraint(Sketcher.Constraint("Vertical", 32, 3, 33, 3))
sketch1.addConstraint(Sketcher.Constraint("Vertical", 35, 3, 41, 3))
sketch1.addConstraint(Sketcher.Constraint("Vertical", 34, 3, 42, 3))
sketch1.addConstraint(Sketcher.Constraint("Vertical", 36, 3, 43, 3))
sketch1.addConstraint(Sketcher.Constraint("Vertical", 37, 3, 44, 3))
sketch1.addConstraint(Sketcher.Constraint("Vertical", 38, 3, 45, 3))
sketch1.addConstraint(Sketcher.Constraint("Vertical", 40, 3, 46, 3))
sketch1.addConstraint(Sketcher.Constraint("Vertical", 39, 3, 47, 3))
sketch1.addConstraint(Sketcher.Constraint("Vertical", 26, 3, 48, 3))
sketch1.addConstraint(Sketcher.Constraint("Vertical", 25, 3, 49, 3))
sketch1.addConstraint(Sketcher.Constraint("Vertical", 27, 3, 50, 3))
sketch1.addConstraint(Sketcher.Constraint("Vertical", 28, 3, 51, 3))
sketch1.addConstraint(Sketcher.Constraint("Vertical", 29, 3, 52, 3))
sketch1.addConstraint(Sketcher.Constraint("Vertical", 30, 3, 53, 3))
sketch1.addConstraint(Sketcher.Constraint("Vertical", 31, 3, 54, 3))
sketch1.addConstraint(Sketcher.Constraint("Vertical", 49, 3, 55, 3))
sketch1.addConstraint(Sketcher.Constraint("Vertical", 48, 3, 56, 3))
sketch1.addConstraint(Sketcher.Constraint("Vertical", 50, 3, 57, 3))
sketch1.addConstraint(Sketcher.Constraint("Vertical", 51, 3, 58, 3))
sketch1.addConstraint(Sketcher.Constraint("Vertical", 17, 3, 59, 3))
sketch1.addConstraint(Sketcher.Constraint("Vertical", 59, 3, 60, 3))
sketch1.addConstraint(Sketcher.Constraint("Vertical", 52, 3, 61, 3))
sketch1.addConstraint(Sketcher.Constraint("Vertical", 54, 3, 62, 3))
sketch1.addConstraint(Sketcher.Constraint("Vertical", 53, 3, 63, 3))
sketch1.addConstraint(Sketcher.Constraint("Vertical", 41, 3, 64, 3))
sketch1.addConstraint(Sketcher.Constraint("Vertical", 42, 3, 65, 3))
sketch1.addConstraint(Sketcher.Constraint("Vertical", 43, 3, 66, 3))
sketch1.addConstraint(Sketcher.Constraint("Vertical", 44, 3, 67, 3))
sketch1.addConstraint(Sketcher.Constraint("Vertical", 45, 3, 68, 3))
sketch1.addConstraint(Sketcher.Constraint("Vertical", 46, 3, 69, 3))
sketch1.addConstraint(Sketcher.Constraint("Vertical", 47, 3, 70, 3))
sketch1.addConstraint(Sketcher.Constraint("Vertical", 65, 3, 71, 3))
sketch1.addConstraint(Sketcher.Constraint("Vertical", 64, 3, 72, 3))
sketch1.addConstraint(Sketcher.Constraint("Vertical", 66, 3, 73, 3))
sketch1.addConstraint(Sketcher.Constraint("Vertical", 33, 3, 74, 3))
sketch1.addConstraint(Sketcher.Constraint("Vertical", 74, 3, 75, 3))
sketch1.addConstraint(Sketcher.Constraint("Vertical", 67, 3, 76, 3))
sketch1.addConstraint(Sketcher.Constraint("Vertical", 68, 3, 77, 3))
sketch1.addConstraint(Sketcher.Constraint("Vertical", 70, 3, 78, 3))
sketch1.addConstraint(Sketcher.Constraint("Vertical", 69, 3, 79, 3))
sketch1.addConstraint(Sketcher.Constraint("Equal", 3, 13))
sketch1.addConstraint(Sketcher.Constraint("Diameter", 4, Q("3 mm")))
sketch1.addConstraint(Sketcher.Constraint("Diameter", 19, Q("10 mm")))
sketch1.addConstraint(Sketcher.Constraint("Diameter", 16, Q("3.1 mm")))
sketch1.addConstraint(Sketcher.Constraint("DistanceX", 1, 1, 1, 2, Q("238 mm")))
sketch1.addConstraint(Sketcher.Constraint("DistanceX", 19, 3, -1, 1, Q("390 mm")))
sketch1.addConstraint(Sketcher.Constraint("DistanceX", 20, 3, -1, 1, Q("406 mm")))
sketch1.addConstraint(Sketcher.Constraint("DistanceX", 21, 3, -1, 1, Q("374 mm")))
sketch1.addConstraint(Sketcher.Constraint("DistanceX", 22, 3, -1, 1, Q("358 mm")))
sketch1.addConstraint(Sketcher.Constraint("DistanceX", 23, 3, -1, 1, Q("342 mm")))
sketch1.addConstraint(Sketcher.Constraint("DistanceX", 24, 3, -1, 1, Q("326 mm")))
sketch1.addConstraint(Sketcher.Constraint("DistanceX", 34, 3, -1, 1, Q("310 mm")))
sketch1.addConstraint(Sketcher.Constraint("DistanceX", 35, 3, -1, 1, Q("294 mm")))
sketch1.addConstraint(Sketcher.Constraint("DistanceX", 36, 3, -1, 1, Q("278 mm")))
sketch1.addConstraint(Sketcher.Constraint("DistanceX", 37, 3, -1, 1, Q("262 mm")))
sketch1.addConstraint(Sketcher.Constraint("DistanceX", 38, 3, -1, 1, Q("230 mm")))
sketch1.addConstraint(Sketcher.Constraint("DistanceX", 39, 3, -1, 1, Q("246 mm")))
sketch1.addConstraint(Sketcher.Constraint("DistanceX", 12, 2, -1, 1, Q("199 mm")))
sketch1.addConstraint(Sketcher.Constraint("DistanceX", 4, 3, -1, 1, Q("90.5 mm")))
sketch1.addConstraint(Sketcher.Constraint("DistanceY", 6, 3, -1, 1, Q("89.2 mm")))
sketch1.addConstraint(Sketcher.Constraint("DistanceX", 16, 3, -1, 1, Q("365.5 mm")))
sketch1.addConstraint(Sketcher.Constraint("DistanceX", 18, 3, -1, 1, Q("408.5 mm")))
sketch1.addConstraint(Sketcher.Constraint("DistanceY", 18, 3, -1, 1, Q("90.7 mm")))
sketch1.addConstraint(Sketcher.Constraint("DistanceX", 32, 3, -1, 1, Q("280.5 mm")))
sketch1.addConstraint(Sketcher.Constraint("DistanceX", 40, 3, -1, 1, Q("227.5 mm")))
sketch1.addConstraint(Sketcher.Constraint("DistanceY", 46, 3, -1, 1, Q("22.9 mm")))
sketch1.addConstraint(Sketcher.Constraint("DistanceY", 0, 2, 0, 1, Q("260.938 mm")))
sketch1.addConstraint(Sketcher.Constraint("DistanceY", 12, 1, 12, 2, Q("304.438 mm")))
sketch1.addConstraint(Sketcher.Constraint("DistanceY", 5, 3, -1, 1, Q("21.65 mm")))
sketch1.addConstraint(Sketcher.Constraint("DistanceY", -1, 1, 49, 3, Q("20.15 mm")))
sketch1.addConstraint(Sketcher.Constraint("DistanceY", -1, 1, 79, 3, Q("87.95 mm")))
sketch1.addConstraint(Sketcher.Constraint("DistanceY", 4, 3, -1, 1, Q("77.075 mm")))
sketch1.addConstraint(Sketcher.Constraint("DistanceY", 7, 3, -1, 1, Q("33.775 mm")))
sketch1.addConstraint(Sketcher.Constraint("DistanceY", 16, 3, -1, 1, Q("132.969 mm")))
sketch1.addConstraint(Sketcher.Constraint("DistanceY", 17, 3, -1, 1, Q("117.969 mm")))
sketch1.addConstraint(Sketcher.Constraint("DistanceY", 19, 3, -1, 1, Q("98.494 mm")))
sketch1.addConstraint(Sketcher.Constraint("DistanceY", 20, 3, -1, 1, Q("70.781 mm")))
sketch1.addConstraint(Sketcher.Constraint("DistanceY", 25, 3, -1, 1, Q("35.275 mm")))
sketch1.addConstraint(Sketcher.Constraint("DistanceY", 26, 3, -1, 1, Q("43.069 mm")))
sketch1.addConstraint(Sketcher.Constraint("DistanceY", 27, 3, -1, 1, Q("15.356 mm")))
sketch1.addConstraint(Sketcher.Constraint("DistanceY", 40, 3, -1, 1, Q("78.325 mm")))
sketch1.addConstraint(Sketcher.Constraint("DistanceY", -1, 1, 48, 3, Q("12.356 mm")))
sketch1.addConstraint(Sketcher.Constraint("DistanceY", -1, 1, 50, 3, Q("40.069 mm")))
sketch1.addConstraint(Sketcher.Constraint("DistanceY", -1, 1, 55, 3, Q("75.575 mm")))
sketch1.addConstraint(Sketcher.Constraint("DistanceY", -1, 1, 56, 3, Q("67.781 mm")))
sketch1.addConstraint(Sketcher.Constraint("DistanceY", -1, 1, 57, 3, Q("95.494 mm")))
sketch1.addConstraint(Sketcher.Constraint("DistanceY", -1, 1, 59, 3, Q("116.469 mm")))
sketch1.addConstraint(Sketcher.Constraint("DistanceY", -1, 1, 60, 3, Q("131.469 mm")))
sketch1.addConstraint(Sketcher.Constraint("DistanceY", -1, 1, 69, 3, Q("32.525 mm")))
sketch1.addConstraint(Sketcher.Constraint("DistanceY", -1, 1, 12, 2, Q("151.469 mm")))
pad1 = body.newObject("PartDesign::Pad", "Pad")
pad1.Profile = sketch1
pad1.Length = 6

doc.recompute()
